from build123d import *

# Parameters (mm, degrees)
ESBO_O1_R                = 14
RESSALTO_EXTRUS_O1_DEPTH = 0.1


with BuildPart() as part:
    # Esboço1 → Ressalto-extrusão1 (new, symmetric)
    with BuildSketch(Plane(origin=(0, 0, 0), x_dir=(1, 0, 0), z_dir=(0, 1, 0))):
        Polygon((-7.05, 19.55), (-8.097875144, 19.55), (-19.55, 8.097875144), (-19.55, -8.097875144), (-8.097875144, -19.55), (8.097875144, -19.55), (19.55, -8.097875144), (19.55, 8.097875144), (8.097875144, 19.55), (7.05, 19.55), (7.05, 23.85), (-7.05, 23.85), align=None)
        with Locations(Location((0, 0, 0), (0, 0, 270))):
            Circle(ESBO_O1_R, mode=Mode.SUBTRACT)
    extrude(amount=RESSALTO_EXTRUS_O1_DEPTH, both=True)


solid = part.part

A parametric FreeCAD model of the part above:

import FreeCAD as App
import Part
import Sketcher
from FreeCAD import Vector


def add_polygon(sketch, points):
    """Adds a closed chain of lines whose ends are joined by coincident constraints."""
    first, n = sketch.GeometryCount, len(points)
    for a, b in zip(points, points[1:] + points[:1]):
        sketch.addGeometry(Part.LineSegment(App.Vector(*a, 0), App.Vector(*b, 0)), False)
    for i in range(n):
        sketch.addConstraint(Sketcher.Constraint("Coincident", first + i, 2, first + (i + 1) % n, 1))

doc = App.newDocument("Part")
params = doc.addObject("Spreadsheet::Sheet", "Params")
for row, (alias, value) in enumerate([
    ("sketch1_diameter", "28 mm"),
    ("sketch1_width", "14.1 mm"),
    ("sketch1_height", "4.3 mm"),
    ("pad1_length", "0.2 mm"),
], start=1):
    params.set(f"A{row}", alias)
    params.set(f"B{row}", "=" + value)
    params.setAlias(f"B{row}", alias)

body = doc.addObject("PartDesign::Body", "Body")

sketch1 = body.newObject("Sketcher::SketchObject", "Sketch")
sketch1.AttachmentSupport = (doc.getObject("XZ_Plane"), [""])
sketch1.MapMode = "FlatFace"
add_polygon(sketch1, [(-7, -19.6), (-8.1, -19.6), (-19.6, -8.1), (-19.6, 8.1), (-8.1, 19.6), (8.1, 19.6), (19.6, 8.1), (19.6, -8.1), (8.1, -19.6), (7, -19.6), (7, -23.9), (-7, -23.9)])
sketch1.addGeometry(Part.Circle(Vector(0, 0, 0), Vector(0, 0, 1), 14), False)
sketch1.addConstraint(Sketcher.Constraint("Horizontal", 0))
sketch1.addConstraint(Sketcher.Constraint("Vertical", 2))
sketch1.addConstraint(Sketcher.Constraint("Horizontal", 4))
sketch1.addConstraint(Sketcher.Constraint("Vertical", 6))
sketch1.addConstraint(Sketcher.Constraint("Horizontal", 8))
sketch1.addConstraint(Sketcher.Constraint("Vertical", 9))
sketch1.addConstraint(Sketcher.Constraint("Horizontal", 10))
sketch1.addConstraint(Sketcher.Constraint("Vertical", 11))
sketch1.addConstraint(Sketcher.Constraint("Coincident", 12, 3, -1, 1))
sketch1.addConstraint(Sketcher.Constraint("Symmetric", 0, 2, 4, 2, -1, 1))
sketch1.addConstraint(Sketcher.Constraint("Symmetric", 1, 2, 5, 2, -1, 1))
sketch1.addConstraint(Sketcher.Constraint("Symmetric", 3, 2, 7, 2, -1, 1))
sketch1.addConstraint(Sketcher.Constraint("Perpendicular", 1, 3))
sketch1.addConstraint(Sketcher.Constraint("Perpendicular", 5, 7))
sketch1.addConstraint(Sketcher.Constraint("Horizontal", 2, 2, 5, 2))
sketch1.addConstraint(Sketcher.Constraint("Vertical", 0, 2, 3, 2))
sketch1.addConstraint(Sketcher.Constraint("Equal", 0, 8))
sketch1.addConstraint(Sketcher.Constraint("Equal", 4, 2))
sketch1.addConstraint(Sketcher.Constraint("Diameter", 12, 28.0))
sketch1.addConstraint(Sketcher.Constraint("DistanceX", 10, 2, 10, 1, 14.1))
sketch1.addConstraint(Sketcher.Constraint("DistanceY", 9, 2, 9, 1, 4.3))
sketch1.addConstraint(Sketcher.Constraint("DistanceY", 0, 2, 3, 2, 39.1))
sketch1.addConstraint(Sketcher.Constraint("DistanceX", 4, 1, 4, 2, 16.19575))
sketch1.setExpression("Constraints[30]", "Params.sketch1_diameter")
sketch1.setExpression("Constraints[31]", "Params.sketch1_width")
sketch1.setExpression("Constraints[32]", "Params.sketch1_height")
pad1 = body.newObject("PartDesign::Pad", "Pad")
pad1.Profile = sketch1
pad1.setExpression("Length", "Params.pad1_length")
pad1.Midplane = True

doc.recompute()
